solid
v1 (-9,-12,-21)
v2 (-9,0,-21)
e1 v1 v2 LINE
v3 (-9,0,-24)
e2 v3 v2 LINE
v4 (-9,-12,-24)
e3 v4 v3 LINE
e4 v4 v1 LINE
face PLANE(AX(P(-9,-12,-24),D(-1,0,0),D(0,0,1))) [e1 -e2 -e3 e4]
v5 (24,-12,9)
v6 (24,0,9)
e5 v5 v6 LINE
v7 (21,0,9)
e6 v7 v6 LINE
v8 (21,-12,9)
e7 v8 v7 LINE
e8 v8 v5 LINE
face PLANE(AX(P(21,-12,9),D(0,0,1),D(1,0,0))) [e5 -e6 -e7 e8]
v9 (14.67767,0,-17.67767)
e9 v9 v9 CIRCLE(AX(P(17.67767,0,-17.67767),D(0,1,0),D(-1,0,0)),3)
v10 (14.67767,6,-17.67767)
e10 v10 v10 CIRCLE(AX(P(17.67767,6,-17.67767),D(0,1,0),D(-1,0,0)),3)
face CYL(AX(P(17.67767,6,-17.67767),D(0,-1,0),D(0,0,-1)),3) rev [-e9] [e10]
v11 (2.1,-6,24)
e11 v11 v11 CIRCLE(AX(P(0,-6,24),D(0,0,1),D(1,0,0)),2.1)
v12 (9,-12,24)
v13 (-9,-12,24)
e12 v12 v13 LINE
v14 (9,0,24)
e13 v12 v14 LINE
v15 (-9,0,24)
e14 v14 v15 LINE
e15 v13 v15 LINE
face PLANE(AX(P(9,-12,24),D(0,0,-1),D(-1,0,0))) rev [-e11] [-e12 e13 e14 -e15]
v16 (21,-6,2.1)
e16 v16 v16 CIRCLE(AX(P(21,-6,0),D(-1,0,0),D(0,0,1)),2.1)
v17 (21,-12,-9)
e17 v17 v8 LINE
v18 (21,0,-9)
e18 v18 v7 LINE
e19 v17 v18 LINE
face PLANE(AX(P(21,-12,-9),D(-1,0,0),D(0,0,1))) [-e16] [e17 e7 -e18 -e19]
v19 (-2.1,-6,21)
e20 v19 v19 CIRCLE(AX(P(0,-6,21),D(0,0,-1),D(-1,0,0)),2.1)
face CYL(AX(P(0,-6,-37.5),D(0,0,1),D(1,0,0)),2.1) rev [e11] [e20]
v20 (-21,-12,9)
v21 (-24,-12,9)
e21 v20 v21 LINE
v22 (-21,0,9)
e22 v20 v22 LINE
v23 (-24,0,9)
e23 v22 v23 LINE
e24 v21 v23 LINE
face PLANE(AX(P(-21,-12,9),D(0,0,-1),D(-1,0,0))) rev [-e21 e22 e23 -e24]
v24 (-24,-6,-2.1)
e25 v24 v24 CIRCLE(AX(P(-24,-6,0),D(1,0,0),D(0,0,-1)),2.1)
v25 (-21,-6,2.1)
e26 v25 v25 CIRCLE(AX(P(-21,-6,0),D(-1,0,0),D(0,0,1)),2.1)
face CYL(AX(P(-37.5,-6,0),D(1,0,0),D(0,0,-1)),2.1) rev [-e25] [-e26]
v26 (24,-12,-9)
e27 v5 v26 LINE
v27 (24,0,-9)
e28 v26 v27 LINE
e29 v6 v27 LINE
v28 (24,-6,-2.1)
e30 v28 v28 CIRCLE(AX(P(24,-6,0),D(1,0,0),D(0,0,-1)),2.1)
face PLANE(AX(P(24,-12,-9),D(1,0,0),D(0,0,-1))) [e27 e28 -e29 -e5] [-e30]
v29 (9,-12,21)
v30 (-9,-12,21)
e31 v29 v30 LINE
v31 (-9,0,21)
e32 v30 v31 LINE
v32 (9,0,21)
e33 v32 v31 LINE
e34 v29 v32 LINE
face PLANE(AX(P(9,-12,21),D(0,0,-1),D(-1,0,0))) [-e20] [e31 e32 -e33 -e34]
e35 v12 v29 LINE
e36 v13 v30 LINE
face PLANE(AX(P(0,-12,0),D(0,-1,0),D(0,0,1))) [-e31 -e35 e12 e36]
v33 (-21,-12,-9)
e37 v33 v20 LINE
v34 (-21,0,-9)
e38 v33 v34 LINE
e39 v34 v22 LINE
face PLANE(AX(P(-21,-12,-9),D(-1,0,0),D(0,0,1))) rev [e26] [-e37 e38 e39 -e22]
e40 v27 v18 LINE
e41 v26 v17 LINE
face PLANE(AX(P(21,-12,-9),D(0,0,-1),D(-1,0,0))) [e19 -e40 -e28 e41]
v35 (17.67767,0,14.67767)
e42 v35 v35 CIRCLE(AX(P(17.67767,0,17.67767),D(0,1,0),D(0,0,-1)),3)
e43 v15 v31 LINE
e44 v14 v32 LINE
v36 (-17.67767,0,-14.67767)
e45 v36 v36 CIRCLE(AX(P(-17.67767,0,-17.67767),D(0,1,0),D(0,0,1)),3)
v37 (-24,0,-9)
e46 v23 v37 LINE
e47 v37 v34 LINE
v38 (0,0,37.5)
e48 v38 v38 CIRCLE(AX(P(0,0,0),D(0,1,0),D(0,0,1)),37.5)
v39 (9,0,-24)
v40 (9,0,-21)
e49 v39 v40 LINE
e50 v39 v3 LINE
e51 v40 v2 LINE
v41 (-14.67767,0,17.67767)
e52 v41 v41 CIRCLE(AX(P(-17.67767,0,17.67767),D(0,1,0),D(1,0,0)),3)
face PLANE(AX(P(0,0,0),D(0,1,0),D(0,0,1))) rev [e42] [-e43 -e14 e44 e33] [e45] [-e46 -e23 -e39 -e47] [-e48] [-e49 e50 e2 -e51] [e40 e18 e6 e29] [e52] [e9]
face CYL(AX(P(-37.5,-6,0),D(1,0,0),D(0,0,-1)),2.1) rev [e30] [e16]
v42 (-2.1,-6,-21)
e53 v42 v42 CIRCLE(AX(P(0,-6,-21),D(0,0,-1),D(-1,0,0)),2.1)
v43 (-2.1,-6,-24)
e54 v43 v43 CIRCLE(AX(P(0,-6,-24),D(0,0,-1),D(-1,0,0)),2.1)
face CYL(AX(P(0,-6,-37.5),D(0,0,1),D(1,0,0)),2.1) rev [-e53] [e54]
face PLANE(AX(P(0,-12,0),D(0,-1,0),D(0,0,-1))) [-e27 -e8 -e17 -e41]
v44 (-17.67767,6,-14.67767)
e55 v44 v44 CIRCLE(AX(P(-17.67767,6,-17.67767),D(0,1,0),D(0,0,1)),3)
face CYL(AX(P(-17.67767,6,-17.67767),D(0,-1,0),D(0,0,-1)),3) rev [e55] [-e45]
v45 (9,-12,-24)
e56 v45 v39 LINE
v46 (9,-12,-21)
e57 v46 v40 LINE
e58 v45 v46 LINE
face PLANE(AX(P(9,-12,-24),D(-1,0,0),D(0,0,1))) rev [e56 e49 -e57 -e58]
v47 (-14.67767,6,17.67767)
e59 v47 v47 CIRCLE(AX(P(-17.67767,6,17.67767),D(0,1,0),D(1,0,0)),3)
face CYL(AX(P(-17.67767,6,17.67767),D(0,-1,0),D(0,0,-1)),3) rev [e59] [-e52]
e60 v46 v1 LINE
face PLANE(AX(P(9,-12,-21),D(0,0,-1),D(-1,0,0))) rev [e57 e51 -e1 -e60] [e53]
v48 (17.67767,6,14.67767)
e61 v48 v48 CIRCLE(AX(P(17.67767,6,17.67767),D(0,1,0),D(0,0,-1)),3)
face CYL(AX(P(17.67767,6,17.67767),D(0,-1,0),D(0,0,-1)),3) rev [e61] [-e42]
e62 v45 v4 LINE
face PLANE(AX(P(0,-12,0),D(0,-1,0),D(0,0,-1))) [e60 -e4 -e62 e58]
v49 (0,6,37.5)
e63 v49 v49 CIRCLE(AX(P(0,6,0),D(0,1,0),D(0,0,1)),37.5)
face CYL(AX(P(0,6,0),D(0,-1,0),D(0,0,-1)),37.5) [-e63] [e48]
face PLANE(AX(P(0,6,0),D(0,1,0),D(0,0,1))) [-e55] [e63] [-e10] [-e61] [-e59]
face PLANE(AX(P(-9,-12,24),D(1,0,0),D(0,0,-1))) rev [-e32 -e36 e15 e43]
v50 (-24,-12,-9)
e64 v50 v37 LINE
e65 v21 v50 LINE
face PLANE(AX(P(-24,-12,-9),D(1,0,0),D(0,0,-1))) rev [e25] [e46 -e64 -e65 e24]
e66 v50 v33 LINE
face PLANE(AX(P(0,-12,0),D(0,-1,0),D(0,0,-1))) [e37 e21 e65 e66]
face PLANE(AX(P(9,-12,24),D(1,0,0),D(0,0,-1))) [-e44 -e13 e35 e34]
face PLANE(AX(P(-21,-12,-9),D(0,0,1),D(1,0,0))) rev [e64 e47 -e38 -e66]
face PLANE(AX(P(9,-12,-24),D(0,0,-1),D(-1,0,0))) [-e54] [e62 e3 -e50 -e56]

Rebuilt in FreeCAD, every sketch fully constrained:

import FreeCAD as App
import Part
import Sketcher

V = App.Vector


def add_polygon(sketch, points):
    """Adds a closed chain of lines whose ends are joined by coincident constraints."""
    first, n = sketch.GeometryCount, len(points)
    for a, b in zip(points, points[1:] + points[:1]):
        sketch.addGeometry(Part.LineSegment(App.Vector(*a, 0), App.Vector(*b, 0)), False)
    for i in range(n):
        sketch.addConstraint(Sketcher.Constraint("Coincident", first + i, 2, first + (i + 1) % n, 1))

doc = App.newDocument("Part")
params = doc.addObject("Spreadsheet::Sheet", "Params")
for row, (alias, value) in enumerate([
    ("sketch1_diameter", "75 mm"),
    ("pad1_length", "6 mm"),
    ("sketch2_diameter", "6 mm"),
    ("sketch3_width", "18 mm"),
    ("sketch3_height", "3 mm"),
    ("pad2_length", "12 mm"),
    ("sketch4_width", "18 mm"),
    ("sketch4_width2", "3 mm"),
    ("pad3_length", "12 mm"),
    ("sketch5_diameter", "4.2 mm"),
    ("sketch6_diameter", "4.2 mm"),
], start=1):
    params.set(f"A{row}", alias)
    params.set(f"B{row}", "=" + value)
    params.setAlias(f"B{row}", alias)

body = doc.addObject("PartDesign::Body", "Body")

sketch1 = body.newObject("Sketcher::SketchObject", "Sketch")
sketch1.AttachmentSupport = (doc.getObject("XZ_Plane"), [""])
sketch1.MapMode = "FlatFace"
sketch1.addGeometry(Part.Circle(V(0, 0, 0), V(0, 0, 1), 38), False)
sketch1.addConstraint([
    Sketcher.Constraint("Coincident", 0, 3, -1, 1),
    Sketcher.Constraint("Diameter", 0, 75.0),
])
sketch1.setExpression("Constraints[1]", "Params.sketch1_diameter")
pad1 = body.newObject("PartDesign::Pad", "Pad")
pad1.Profile = sketch1
pad1.setExpression("Length", "Params.pad1_length")
pad1.Reversed = True

sketch2 = body.newObject("Sketcher::SketchObject", "Sketch001")
sketch2.AttachmentSupport = (doc.getObject("XZ_Plane"), [""])
sketch2.MapMode = "FlatFace"
sketch2.addGeometry(Part.Circle(V(-17.7, -17.7, 0), V(0, 0, 1), 3), False)
sketch2.addConstraint([
    Sketcher.Constraint("Diameter", 0, 6.0),
    Sketcher.Constraint("DistanceX", 0, 3, -1, 1, 17.67767),
    Sketcher.Constraint("DistanceY", 0, 3, -1, 1, 17.67767),
])
sketch2.setExpression("Constraints[0]", "Params.sketch2_diameter")
pocket1 = body.newObject("PartDesign::Pocket", "Pocket")
pocket1.Profile = sketch2
pocket1.Type = "ThroughAll"
doc.recompute()

polarpattern = body.newObject("PartDesign::PolarPattern", "PolarPattern")
polarpattern.Originals = [pocket1]
polarpattern.Axis = (doc.getObject("Y_Axis"), [""])
polarpattern.Angle = 360
polarpattern.Occurrences = 4
body.Tip = polarpattern

sketch3 = body.newObject("Sketcher::SketchObject", "Sketch002")
sketch3.AttachmentSupport = (doc.getObject("XZ_Plane"), [""])
sketch3.MapMode = "FlatFace"
add_polygon(sketch3, [(9, -24), (9, -21), (-9, -21), (-9, -24)])
sketch3.addConstraint([
    Sketcher.Constraint("Vertical", 0),
    Sketcher.Constraint("Horizontal", 1),
    Sketcher.Constraint("Vertical", 2),
    Sketcher.Constraint("Horizontal", 3),
    Sketcher.Constraint("DistanceX", 1, 2, 1, 1, 18.0),
    Sketcher.Constraint("DistanceY", 0, 1, 0, 2, 3.0),
    Sketcher.Constraint("DistanceX", -1, 1, 0, 2, 9.0),
    Sketcher.Constraint("DistanceY", 0, 2, -1, 1, 21.0),
])
sketch3.setExpression("Constraints[8]", "Params.sketch3_width")
sketch3.setExpression("Constraints[9]", "Params.sketch3_height")
pad2 = body.newObject("PartDesign::Pad", "Pad001")
pad2.Profile = sketch3
pad2.setExpression("Length", "Params.pad2_length")

sketch4 = body.newObject("Sketcher::SketchObject", "Sketch003")
sketch4.AttachmentSupport = (doc.getObject("XZ_Plane"), [""])
sketch4.MapMode = "FlatFace"
add_polygon(sketch4, [(9, -24), (9, -21), (-9, -21), (-9, -24)])
add_polygon(sketch4, [(-21, -9), (-21, 9), (-24, 9), (-24, -9)])
sketch4.addConstraint([
    Sketcher.Constraint("Vertical", 0),
    Sketcher.Constraint("Horizontal", 1),
    Sketcher.Constraint("Vertical", 2),
    Sketcher.Constraint("Horizontal", 3),
    Sketcher.Constraint("Vertical", 4),
    Sketcher.Constraint("Horizontal", 5),
    Sketcher.Constraint("Vertical", 6),
    Sketcher.Constraint("Horizontal", 7),
    Sketcher.Constraint("Equal", 7, 0),
    Sketcher.Constraint("Equal", 3, 4),
    Sketcher.Constraint("DistanceX", 1, 2, 1, 1, 18.0),
    Sketcher.Constraint("DistanceX", 5, 2, 5, 1, 3.0),
    Sketcher.Constraint("DistanceX", -1, 1, 0, 2, 9.0),
    Sketcher.Constraint("DistanceY", 0, 2, -1, 1, 21.0),
    Sketcher.Constraint("DistanceX", 4, 2, -1, 1, 21.0),
    Sketcher.Constraint("DistanceY", -1, 1, 4, 2, 9.0),
])
sketch4.setExpression("Constraints[18]", "Params.sketch4_width")
sketch4.setExpression("Constraints[19]", "Params.sketch4_width2")
pad3 = body.newObject("PartDesign::Pad", "Pad002")
pad3.Profile = sketch4
pad3.setExpression("Length", "Params.pad3_length")
doc.recompute()

mirrored = body.newObject("PartDesign::Mirrored", "Mirrored")
mirrored.Originals = [pad2]
mirrored.MirrorPlane = (doc.getObject("XY_Plane"), [""])
body.Tip = mirrored
doc.recompute()

mirrored2 = body.newObject("PartDesign::Mirrored", "Mirrored001")
mirrored2.Originals = [pad3]
mirrored2.MirrorPlane = (doc.getObject("YZ_Plane"), [""])
body.Tip = mirrored2

sketch5 = body.newObject("Sketcher::SketchObject", "Sketch004")
sketch5.AttachmentSupport = (doc.getObject("XY_Plane"), [""])
sketch5.MapMode = "FlatFace"
sketch5.AttachmentOffset = App.Placement(V(0, 0, 24), App.Rotation())
sketch5.addGeometry(Part.Circle(V(0, -6, 0), V(0, 0, 1), 2.1), False)
sketch5.addConstraint([
    Sketcher.Constraint("PointOnObject", 0, 3, -2),
    Sketcher.Constraint("Diameter", 0, 4.2),
    Sketcher.Constraint("DistanceY", 0, 3, -1, 1, 6.0),
])
sketch5.setExpression("Constraints[1]", "Params.sketch5_diameter")
pocket2 = body.newObject("PartDesign::Pocket", "Pocket001")
pocket2.Profile = sketch5
pocket2.Type = "ThroughAll"

sketch6 = body.newObject("Sketcher::SketchObject", "Sketch005")
sketch6.AttachmentSupport = (doc.getObject("YZ_Plane"), [""])
sketch6.MapMode = "FlatFace"
sketch6.AttachmentOffset = App.Placement(V(0, 0, 24), App.Rotation())
sketch6.addGeometry(Part.Circle(V(-6, 0, 0), V(0, 0, 1), 2.1), False)
sketch6.addConstraint([
    Sketcher.Constraint("PointOnObject", 0, 3, -1),
    Sketcher.Constraint("Diameter", 0, 4.2),
    Sketcher.Constraint("DistanceX", 0, 3, -1, 1, 6.0),
])
sketch6.setExpression("Constraints[1]", "Params.sketch6_diameter")
pocket3 = body.newObject("PartDesign::Pocket", "Pocket002")
pocket3.Profile = sketch6
pocket3.Type = "ThroughAll"

doc.recompute()
